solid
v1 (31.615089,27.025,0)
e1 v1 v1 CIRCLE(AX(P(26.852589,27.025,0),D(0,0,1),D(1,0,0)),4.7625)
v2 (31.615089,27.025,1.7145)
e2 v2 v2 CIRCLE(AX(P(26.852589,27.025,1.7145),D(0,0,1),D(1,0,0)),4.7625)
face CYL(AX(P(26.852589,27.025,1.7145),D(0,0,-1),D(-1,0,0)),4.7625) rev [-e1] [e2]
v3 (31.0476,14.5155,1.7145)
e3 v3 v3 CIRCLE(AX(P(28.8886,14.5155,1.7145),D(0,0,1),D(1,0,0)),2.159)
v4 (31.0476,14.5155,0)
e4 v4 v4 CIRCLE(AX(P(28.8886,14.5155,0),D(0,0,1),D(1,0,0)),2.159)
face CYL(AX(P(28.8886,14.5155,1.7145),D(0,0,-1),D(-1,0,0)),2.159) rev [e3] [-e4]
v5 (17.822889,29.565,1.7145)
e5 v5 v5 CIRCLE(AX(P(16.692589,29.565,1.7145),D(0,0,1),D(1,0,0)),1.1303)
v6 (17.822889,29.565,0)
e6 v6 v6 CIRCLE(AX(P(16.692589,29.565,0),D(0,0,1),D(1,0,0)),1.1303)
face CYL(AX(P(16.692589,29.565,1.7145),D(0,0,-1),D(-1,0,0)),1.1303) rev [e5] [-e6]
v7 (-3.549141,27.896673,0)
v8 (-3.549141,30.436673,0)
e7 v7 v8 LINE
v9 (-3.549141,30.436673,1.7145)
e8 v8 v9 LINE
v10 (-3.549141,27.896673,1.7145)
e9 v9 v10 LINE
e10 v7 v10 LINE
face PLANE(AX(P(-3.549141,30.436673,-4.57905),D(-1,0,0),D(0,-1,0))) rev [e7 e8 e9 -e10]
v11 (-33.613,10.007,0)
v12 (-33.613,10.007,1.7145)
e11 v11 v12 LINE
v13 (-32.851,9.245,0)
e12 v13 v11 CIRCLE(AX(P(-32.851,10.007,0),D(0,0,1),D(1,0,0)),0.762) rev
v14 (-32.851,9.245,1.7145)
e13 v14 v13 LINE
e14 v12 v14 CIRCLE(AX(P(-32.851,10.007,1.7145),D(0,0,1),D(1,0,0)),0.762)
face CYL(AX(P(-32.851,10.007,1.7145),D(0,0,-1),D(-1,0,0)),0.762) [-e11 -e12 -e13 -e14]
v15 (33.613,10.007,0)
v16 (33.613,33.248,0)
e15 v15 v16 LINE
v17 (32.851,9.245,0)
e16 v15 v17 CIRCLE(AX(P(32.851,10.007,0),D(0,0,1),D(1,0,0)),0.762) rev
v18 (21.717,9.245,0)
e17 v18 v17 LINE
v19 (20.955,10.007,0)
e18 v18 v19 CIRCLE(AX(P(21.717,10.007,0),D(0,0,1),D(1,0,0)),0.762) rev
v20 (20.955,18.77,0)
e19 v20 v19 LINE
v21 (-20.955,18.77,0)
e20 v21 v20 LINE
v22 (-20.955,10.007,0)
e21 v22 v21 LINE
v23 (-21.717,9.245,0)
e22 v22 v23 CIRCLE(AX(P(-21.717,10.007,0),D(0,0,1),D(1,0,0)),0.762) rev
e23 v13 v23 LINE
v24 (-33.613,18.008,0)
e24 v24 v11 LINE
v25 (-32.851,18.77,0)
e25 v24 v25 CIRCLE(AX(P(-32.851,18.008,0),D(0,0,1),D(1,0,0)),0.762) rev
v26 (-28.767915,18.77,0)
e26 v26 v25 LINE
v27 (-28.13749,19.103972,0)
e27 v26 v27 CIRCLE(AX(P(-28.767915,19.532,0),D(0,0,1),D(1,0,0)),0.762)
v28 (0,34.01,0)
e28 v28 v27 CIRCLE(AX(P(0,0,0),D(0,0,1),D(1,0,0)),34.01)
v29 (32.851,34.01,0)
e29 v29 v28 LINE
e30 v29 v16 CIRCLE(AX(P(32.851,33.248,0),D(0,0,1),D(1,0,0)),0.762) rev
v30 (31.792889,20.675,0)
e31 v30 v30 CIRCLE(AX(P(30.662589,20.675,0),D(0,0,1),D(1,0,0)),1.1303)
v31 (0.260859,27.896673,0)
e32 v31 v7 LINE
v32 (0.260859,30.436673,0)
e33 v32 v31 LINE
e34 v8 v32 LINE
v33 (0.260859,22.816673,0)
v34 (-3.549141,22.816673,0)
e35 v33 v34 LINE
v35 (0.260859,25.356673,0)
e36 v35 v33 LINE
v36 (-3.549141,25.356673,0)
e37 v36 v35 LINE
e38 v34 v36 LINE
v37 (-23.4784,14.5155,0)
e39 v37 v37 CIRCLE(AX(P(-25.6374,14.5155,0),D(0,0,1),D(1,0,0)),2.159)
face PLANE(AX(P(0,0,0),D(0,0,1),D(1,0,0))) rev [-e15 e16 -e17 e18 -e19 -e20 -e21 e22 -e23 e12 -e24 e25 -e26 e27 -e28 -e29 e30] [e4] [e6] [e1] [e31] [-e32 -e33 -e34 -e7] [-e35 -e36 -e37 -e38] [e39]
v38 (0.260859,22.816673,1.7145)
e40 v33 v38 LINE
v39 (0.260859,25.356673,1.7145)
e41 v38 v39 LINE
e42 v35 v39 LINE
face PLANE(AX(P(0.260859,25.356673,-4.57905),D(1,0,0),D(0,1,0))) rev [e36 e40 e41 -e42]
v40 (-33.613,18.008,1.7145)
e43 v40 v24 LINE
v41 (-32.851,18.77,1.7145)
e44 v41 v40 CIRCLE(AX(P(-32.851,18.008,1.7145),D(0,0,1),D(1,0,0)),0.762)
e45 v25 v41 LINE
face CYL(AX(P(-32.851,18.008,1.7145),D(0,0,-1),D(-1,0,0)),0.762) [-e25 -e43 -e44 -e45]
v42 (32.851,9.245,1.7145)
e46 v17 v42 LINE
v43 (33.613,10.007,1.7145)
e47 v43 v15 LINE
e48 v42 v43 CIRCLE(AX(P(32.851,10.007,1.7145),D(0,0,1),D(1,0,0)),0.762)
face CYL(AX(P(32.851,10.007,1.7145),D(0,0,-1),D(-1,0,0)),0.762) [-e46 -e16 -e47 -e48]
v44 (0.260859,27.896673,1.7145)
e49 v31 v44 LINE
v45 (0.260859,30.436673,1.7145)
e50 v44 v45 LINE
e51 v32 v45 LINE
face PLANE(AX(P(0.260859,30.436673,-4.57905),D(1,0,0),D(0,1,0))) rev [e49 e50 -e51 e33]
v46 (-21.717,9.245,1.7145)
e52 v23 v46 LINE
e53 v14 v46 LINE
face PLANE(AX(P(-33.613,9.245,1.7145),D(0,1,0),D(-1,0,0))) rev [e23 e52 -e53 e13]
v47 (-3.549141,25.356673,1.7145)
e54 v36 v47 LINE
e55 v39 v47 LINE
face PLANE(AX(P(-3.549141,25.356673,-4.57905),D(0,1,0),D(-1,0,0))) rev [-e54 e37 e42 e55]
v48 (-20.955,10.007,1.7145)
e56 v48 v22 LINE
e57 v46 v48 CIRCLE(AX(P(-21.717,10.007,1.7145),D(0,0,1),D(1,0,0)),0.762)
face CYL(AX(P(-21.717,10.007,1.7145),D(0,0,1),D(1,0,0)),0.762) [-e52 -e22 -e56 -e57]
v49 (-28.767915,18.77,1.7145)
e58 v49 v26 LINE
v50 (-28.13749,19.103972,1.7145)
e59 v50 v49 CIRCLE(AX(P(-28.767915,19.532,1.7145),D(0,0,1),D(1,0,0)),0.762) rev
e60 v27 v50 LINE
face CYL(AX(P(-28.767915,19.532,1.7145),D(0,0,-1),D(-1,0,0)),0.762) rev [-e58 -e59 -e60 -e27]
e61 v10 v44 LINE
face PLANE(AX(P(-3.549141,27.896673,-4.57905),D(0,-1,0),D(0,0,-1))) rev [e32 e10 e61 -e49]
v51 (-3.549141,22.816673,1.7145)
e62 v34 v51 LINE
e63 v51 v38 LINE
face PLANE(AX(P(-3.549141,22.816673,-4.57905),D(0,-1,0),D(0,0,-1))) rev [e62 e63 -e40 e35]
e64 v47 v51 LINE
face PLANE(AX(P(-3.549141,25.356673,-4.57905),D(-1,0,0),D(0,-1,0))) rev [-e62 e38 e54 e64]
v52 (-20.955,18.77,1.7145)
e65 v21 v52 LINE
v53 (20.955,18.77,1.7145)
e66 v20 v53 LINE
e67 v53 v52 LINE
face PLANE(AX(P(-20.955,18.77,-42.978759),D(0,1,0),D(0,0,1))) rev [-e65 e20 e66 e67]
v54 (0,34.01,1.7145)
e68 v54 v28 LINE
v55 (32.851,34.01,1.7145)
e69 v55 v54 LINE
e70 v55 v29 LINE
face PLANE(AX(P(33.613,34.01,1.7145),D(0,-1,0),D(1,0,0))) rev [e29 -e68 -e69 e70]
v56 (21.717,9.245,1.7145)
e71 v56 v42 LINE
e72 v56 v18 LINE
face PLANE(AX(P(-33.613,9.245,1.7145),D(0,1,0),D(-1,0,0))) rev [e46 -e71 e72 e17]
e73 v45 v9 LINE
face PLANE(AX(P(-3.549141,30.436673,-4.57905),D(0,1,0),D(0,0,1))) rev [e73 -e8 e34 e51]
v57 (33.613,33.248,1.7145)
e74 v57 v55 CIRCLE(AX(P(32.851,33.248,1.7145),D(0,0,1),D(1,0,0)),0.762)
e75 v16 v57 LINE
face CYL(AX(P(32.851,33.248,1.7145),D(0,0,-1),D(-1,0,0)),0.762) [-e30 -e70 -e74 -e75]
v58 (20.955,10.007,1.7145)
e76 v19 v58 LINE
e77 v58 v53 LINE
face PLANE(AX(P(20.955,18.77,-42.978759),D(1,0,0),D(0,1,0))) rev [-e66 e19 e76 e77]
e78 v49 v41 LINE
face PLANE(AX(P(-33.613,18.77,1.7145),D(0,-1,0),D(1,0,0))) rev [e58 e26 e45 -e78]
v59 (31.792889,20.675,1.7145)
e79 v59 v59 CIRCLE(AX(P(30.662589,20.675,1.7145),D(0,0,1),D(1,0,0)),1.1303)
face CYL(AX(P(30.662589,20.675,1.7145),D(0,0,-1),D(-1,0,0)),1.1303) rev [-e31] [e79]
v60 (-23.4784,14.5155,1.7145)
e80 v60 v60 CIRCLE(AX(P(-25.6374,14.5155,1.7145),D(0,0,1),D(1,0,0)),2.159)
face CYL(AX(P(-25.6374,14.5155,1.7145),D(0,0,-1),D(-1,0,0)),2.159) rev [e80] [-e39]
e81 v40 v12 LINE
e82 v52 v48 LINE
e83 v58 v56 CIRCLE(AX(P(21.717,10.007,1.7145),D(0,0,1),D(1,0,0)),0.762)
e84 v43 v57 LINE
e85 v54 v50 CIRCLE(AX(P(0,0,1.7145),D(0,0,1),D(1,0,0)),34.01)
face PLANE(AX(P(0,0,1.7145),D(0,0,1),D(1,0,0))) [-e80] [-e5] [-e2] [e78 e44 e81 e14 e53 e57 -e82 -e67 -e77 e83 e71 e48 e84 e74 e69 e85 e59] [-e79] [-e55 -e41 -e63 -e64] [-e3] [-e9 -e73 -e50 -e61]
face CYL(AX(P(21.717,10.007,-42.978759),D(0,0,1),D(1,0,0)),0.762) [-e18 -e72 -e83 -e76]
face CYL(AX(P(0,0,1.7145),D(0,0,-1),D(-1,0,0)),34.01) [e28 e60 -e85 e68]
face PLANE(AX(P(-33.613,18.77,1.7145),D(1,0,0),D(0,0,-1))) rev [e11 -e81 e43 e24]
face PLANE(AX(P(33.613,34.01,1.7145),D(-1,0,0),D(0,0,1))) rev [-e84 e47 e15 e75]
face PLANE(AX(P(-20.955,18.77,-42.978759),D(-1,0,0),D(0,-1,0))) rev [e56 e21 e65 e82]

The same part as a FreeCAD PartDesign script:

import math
import FreeCAD as App
import Part
import Sketcher
Q = App.Units.Quantity


def edges_at(feature, points):
    """Names of the edges that pass closest to the given points."""
    edges = feature.Shape.Edges
    near = lambda p: min(range(len(edges)), key=lambda i: edges[i].distToShape(Part.Vertex(*p))[0])
    return sorted({f"Edge{near(p) + 1}" for p in points})


def add_polygon(sketch, points):
    """Adds a closed chain of lines whose ends are joined by coincident constraints."""
    first, n = sketch.GeometryCount, len(points)
    for a, b in zip(points, points[1:] + points[:1]):
        sketch.addGeometry(Part.LineSegment(App.Vector(*a, 0), App.Vector(*b, 0)), False)
    for i in range(n):
        sketch.addConstraint(Sketcher.Constraint("Coincident", first + i, 2, first + (i + 1) % n, 1))

doc = App.newDocument("Part")
params = doc.addObject("Spreadsheet::Sheet", "Params")
for row, (alias, value) in enumerate([
    ("sketch1_diameter", "0.17 in"),
    ("sketch1_diameter2", "0.089 in"),
    ("sketch1_diameter3", "0.375 in"),
    ("sketch1_height", "0.975 in"),
    ("pad1_length", "0.0675 in"),
    ("sketch2_height", "0.1 in"),
    ("sketch2_width", "0.15 in"),
    ("pocket1_length", "0.0675 in"),
    ("sketch3_width", "1.65 in"),
    ("sketch3_height", "0.375 in"),
    ("pocket2_length", "0.0675 in"),
    ("fillet_radius", "0.03 in"),
], start=1):
    params.set(f"A{row}", alias)
    params.set(f"B{row}", "=" + value)
    params.setAlias(f"B{row}", alias)

body = doc.addObject("PartDesign::Body", "Body")

# Sketch on XY plane
sketch1 = doc.addObject("Sketcher::SketchObject", "Sketch")
body.addObject(sketch1)
sketch1.AttachmentSupport = (doc.XY_Plane, [""])
sketch1.MapMode = "FlatFace"
sketch1.addGeometry(Part.LineSegment(App.Vector(-33.6, 9.2, 0), App.Vector(33.6, 9.2, 0)), False)
sketch1.addGeometry(Part.LineSegment(App.Vector(33.6, 9.2, 0), App.Vector(33.6, 34, 0)), False)
sketch1.addGeometry(Part.LineSegment(App.Vector(33.6, 34, 0), App.Vector(0, 34, 0)), False)
sketch1.addGeometry(Part.ArcOfCircle(Part.Circle(App.Vector(0, 0, 0), App.Vector(0, 0, 1), 34), math.radians(90), math.radians(147)), False)
sketch1.addGeometry(Part.LineSegment(App.Vector(-28.4, 18.8, 0), App.Vector(-33.6, 18.8, 0)), False)
sketch1.addGeometry(Part.LineSegment(App.Vector(-33.6, 18.8, 0), App.Vector(-33.6, 9.2, 0)), False)
sketch1.addGeometry(Part.Circle(App.Vector(-25.6, 14.5, 0), App.Vector(0, 0, 1), 2.2), False)
sketch1.addGeometry(Part.Circle(App.Vector(28.9, 14.5, 0), App.Vector(0, 0, 1), 2.2), False)
sketch1.addGeometry(Part.Circle(App.Vector(30.7, 20.7, 0), App.Vector(0, 0, 1), 1.1), False)
sketch1.addGeometry(Part.Circle(App.Vector(16.7, 29.6, 0), App.Vector(0, 0, 1), 1.1), False)
sketch1.addGeometry(Part.Circle(App.Vector(26.9, 27, 0), App.Vector(0, 0, 1), 4.8), False)
sketch1.addConstraint(Sketcher.Constraint("Coincident", 0, 2, 1, 1))
sketch1.addConstraint(Sketcher.Constraint("Coincident", 1, 2, 2, 1))
sketch1.addConstraint(Sketcher.Constraint("Tangent", 2, 2, 3, 1))
sketch1.addConstraint(Sketcher.Constraint("Coincident", 3, 2, 4, 1))
sketch1.addConstraint(Sketcher.Constraint("Coincident", 4, 2, 5, 1))
sketch1.addConstraint(Sketcher.Constraint("Coincident", 5, 2, 0, 1))
sketch1.addConstraint(Sketcher.Constraint("Horizontal", 0))
sketch1.addConstraint(Sketcher.Constraint("Vertical", 1))
sketch1.addConstraint(Sketcher.Constraint("Horizontal", 2))
sketch1.addConstraint(Sketcher.Constraint("Horizontal", 4))
sketch1.addConstraint(Sketcher.Constraint("Vertical", 5))
sketch1.addConstraint(Sketcher.Constraint("Coincident", 3, 3, -1, 1))
sketch1.addConstraint(Sketcher.Constraint("Equal", 6, 7))
sketch1.addConstraint(Sketcher.Constraint("Equal", 8, 9))
sketch1.addConstraint(Sketcher.Constraint("Horizontal", 6, 3, 7, 3))
sketch1.addConstraint(Sketcher.Constraint("Diameter", 6, Q("0.17 in")))
sketch1.addConstraint(Sketcher.Constraint("Diameter", 8, Q("0.089 in")))
sketch1.addConstraint(Sketcher.Constraint("Diameter", 10, Q("0.375 in")))
sketch1.addConstraint(Sketcher.Constraint("DistanceX", 9, 3, 10, 3, Q("0.4 in")))
sketch1.addConstraint(Sketcher.Constraint("DistanceY", 10, 3, 9, 3, Q("0.1 in")))
sketch1.addConstraint(Sketcher.Constraint("DistanceY", 0, 2, 10, 3, Q("0.7 in")))
sketch1.addConstraint(Sketcher.Constraint("DistanceY", 3, 2, 2, 2, Q("0.6 in")))
sketch1.addConstraint(Sketcher.Constraint("DistanceY", 1, 1, 1, 2, Q("0.975 in")))
sketch1.addConstraint(Sketcher.Constraint("Radius", 3, 34.01))
sketch1.addConstraint(Sketcher.Constraint("DistanceX", 9, 3, 8, 3, Q("0.55 in")))
sketch1.addConstraint(Sketcher.Constraint("DistanceY", 8, 3, 9, 3, Q("0.35 in")))
sketch1.addConstraint(Sketcher.Constraint("DistanceX", 7, 3, 0, 2, Q("0.186 in")))
sketch1.addConstraint(Sketcher.Constraint("DistanceX", 4, 2, 6, 3, Q("0.314 in")))
sketch1.addConstraint(Sketcher.Constraint("DistanceX", 0, 1, 0, 2, 67.226))
sketch1.addConstraint(Sketcher.Constraint("DistanceX", 2, 2, 2, 1, 33.613))
sketch1.addConstraint(Sketcher.Constraint("DistanceY", 7, 3, 8, 3, Q("0.2425 in")))
sketch1.addConstraint(Sketcher.Constraint("DistanceX", -1, 1, 8, 3, 30.662589))
sketch1.setExpression("Constraints[15]", "Params.sketch1_diameter")
sketch1.setExpression("Constraints[16]", "Params.sketch1_diameter2")
sketch1.setExpression("Constraints[17]", "Params.sketch1_diameter3")
sketch1.setExpression("Constraints[22]", "Params.sketch1_height")
pad1 = doc.addObject("PartDesign::Pad", "Pad")
body.addObject(pad1)
pad1.Profile = sketch1
pad1.setExpression("Length", "Params.pad1_length")

# Sketch on XY plane
sketch2 = doc.addObject("Sketcher::SketchObject", "Sketch001")
body.addObject(sketch2)
sketch2.AttachmentSupport = (doc.XY_Plane, [""])
sketch2.MapMode = "FlatFace"
sketch2.AttachmentOffset = App.Placement(App.Vector(0, 0, 0.0675 * 25.4), App.Rotation())
add_polygon(sketch2, [(-3.5, 30.4), (-3.5, 27.9), (0.3, 27.9), (0.3, 30.4)])  # lines 0-3
add_polygon(sketch2, [(-3.5, 25.4), (-3.5, 22.8), (0.3, 22.8), (0.3, 25.4)])  # lines 4-7
sketch2.addConstraint(Sketcher.Constraint("Vertical", 0))
sketch2.addConstraint(Sketcher.Constraint("Horizontal", 1))
sketch2.addConstraint(Sketcher.Constraint("Vertical", 2))
sketch2.addConstraint(Sketcher.Constraint("Horizontal", 3))
sketch2.addConstraint(Sketcher.Constraint("Vertical", 4))
sketch2.addConstraint(Sketcher.Constraint("Horizontal", 5))
sketch2.addConstraint(Sketcher.Constraint("Vertical", 6))
sketch2.addConstraint(Sketcher.Constraint("Horizontal", 7))
sketch2.addConstraint(Sketcher.Constraint("Vertical", 3, 2, 4, 2))
sketch2.addConstraint(Sketcher.Constraint("Vertical", 2, 2, 5, 2))
sketch2.addConstraint(Sketcher.Constraint("Equal", 2, 4))
sketch2.addConstraint(Sketcher.Constraint("DistanceY", 0, 2, 0, 1, Q("0.1 in")))
sketch2.addConstraint(Sketcher.Constraint("DistanceX", 1, 1, 1, 2, Q("0.15 in")))
sketch2.addConstraint(Sketcher.Constraint("DistanceY", 4, 2, 0, 2, Q("0.2 in")))
sketch2.addConstraint(Sketcher.Constraint("DistanceX", 0, 2, -1, 1, 3.549141))
sketch2.addConstraint(Sketcher.Constraint("DistanceY", -1, 1, 0, 2, 27.896673))
sketch2.setExpression("Constraints[19]", "Params.sketch2_height")
sketch2.setExpression("Constraints[20]", "Params.sketch2_width")
pocket1 = doc.addObject("PartDesign::Pocket", "Pocket")
body.addObject(pocket1)
pocket1.Profile = sketch2
pocket1.setExpression("Length", "Params.pocket1_length")

# Sketch on XY plane
sketch3 = doc.addObject("Sketcher::SketchObject", "Sketch002")
body.addObject(sketch3)
sketch3.AttachmentSupport = (doc.XY_Plane, [""])
sketch3.MapMode = "FlatFace"
sketch3.AttachmentOffset = App.Placement(App.Vector(0, 0, 0.0675 * 25.4), App.Rotation())
add_polygon(sketch3, [(-21, 19), (-21, 9), (21, 9), (21, 19)])  # lines 0-3
sketch3.addConstraint(Sketcher.Constraint("Vertical", 0))
sketch3.addConstraint(Sketcher.Constraint("Horizontal", 1))
sketch3.addConstraint(Sketcher.Constraint("Vertical", 2))
sketch3.addConstraint(Sketcher.Constraint("Horizontal", 3))
sketch3.addConstraint(Sketcher.Constraint("DistanceX", 1, 1, 1, 2, Q("1.65 in")))
sketch3.addConstraint(Sketcher.Constraint("DistanceY", 0, 2, 0, 1, Q("0.375 in")))
sketch3.addConstraint(Sketcher.Constraint("DistanceX", 0, 2, -1, 1, Q("0.825 in")))
sketch3.addConstraint(Sketcher.Constraint("DistanceY", -1, 1, 0, 2, 9.245))
sketch3.setExpression("Constraints[8]", "Params.sketch3_width")
sketch3.setExpression("Constraints[9]", "Params.sketch3_height")
pocket2 = doc.addObject("PartDesign::Pocket", "Pocket001")
body.addObject(pocket2)
pocket2.Profile = sketch3
pocket2.setExpression("Length", "Params.pocket2_length")
doc.recompute()

fillet = doc.addObject("PartDesign::Fillet", "Fillet")
body.addObject(fillet)
fillet.Base = (pocket2, edges_at(pocket2, [
    (-28.361, 18.77, 0.857),
    (33.613, 34.01, 0.857),
    (33.613, 9.245, 0.857),
    (-33.613, 9.245, 0.857),
    (-33.613, 18.77, 0.857),
    (-20.955, 9.245, 0.857),
    (20.955, 9.245, 0.857),
]))
fillet.setExpression("Radius", "Params.fillet_radius")

doc.recompute()
